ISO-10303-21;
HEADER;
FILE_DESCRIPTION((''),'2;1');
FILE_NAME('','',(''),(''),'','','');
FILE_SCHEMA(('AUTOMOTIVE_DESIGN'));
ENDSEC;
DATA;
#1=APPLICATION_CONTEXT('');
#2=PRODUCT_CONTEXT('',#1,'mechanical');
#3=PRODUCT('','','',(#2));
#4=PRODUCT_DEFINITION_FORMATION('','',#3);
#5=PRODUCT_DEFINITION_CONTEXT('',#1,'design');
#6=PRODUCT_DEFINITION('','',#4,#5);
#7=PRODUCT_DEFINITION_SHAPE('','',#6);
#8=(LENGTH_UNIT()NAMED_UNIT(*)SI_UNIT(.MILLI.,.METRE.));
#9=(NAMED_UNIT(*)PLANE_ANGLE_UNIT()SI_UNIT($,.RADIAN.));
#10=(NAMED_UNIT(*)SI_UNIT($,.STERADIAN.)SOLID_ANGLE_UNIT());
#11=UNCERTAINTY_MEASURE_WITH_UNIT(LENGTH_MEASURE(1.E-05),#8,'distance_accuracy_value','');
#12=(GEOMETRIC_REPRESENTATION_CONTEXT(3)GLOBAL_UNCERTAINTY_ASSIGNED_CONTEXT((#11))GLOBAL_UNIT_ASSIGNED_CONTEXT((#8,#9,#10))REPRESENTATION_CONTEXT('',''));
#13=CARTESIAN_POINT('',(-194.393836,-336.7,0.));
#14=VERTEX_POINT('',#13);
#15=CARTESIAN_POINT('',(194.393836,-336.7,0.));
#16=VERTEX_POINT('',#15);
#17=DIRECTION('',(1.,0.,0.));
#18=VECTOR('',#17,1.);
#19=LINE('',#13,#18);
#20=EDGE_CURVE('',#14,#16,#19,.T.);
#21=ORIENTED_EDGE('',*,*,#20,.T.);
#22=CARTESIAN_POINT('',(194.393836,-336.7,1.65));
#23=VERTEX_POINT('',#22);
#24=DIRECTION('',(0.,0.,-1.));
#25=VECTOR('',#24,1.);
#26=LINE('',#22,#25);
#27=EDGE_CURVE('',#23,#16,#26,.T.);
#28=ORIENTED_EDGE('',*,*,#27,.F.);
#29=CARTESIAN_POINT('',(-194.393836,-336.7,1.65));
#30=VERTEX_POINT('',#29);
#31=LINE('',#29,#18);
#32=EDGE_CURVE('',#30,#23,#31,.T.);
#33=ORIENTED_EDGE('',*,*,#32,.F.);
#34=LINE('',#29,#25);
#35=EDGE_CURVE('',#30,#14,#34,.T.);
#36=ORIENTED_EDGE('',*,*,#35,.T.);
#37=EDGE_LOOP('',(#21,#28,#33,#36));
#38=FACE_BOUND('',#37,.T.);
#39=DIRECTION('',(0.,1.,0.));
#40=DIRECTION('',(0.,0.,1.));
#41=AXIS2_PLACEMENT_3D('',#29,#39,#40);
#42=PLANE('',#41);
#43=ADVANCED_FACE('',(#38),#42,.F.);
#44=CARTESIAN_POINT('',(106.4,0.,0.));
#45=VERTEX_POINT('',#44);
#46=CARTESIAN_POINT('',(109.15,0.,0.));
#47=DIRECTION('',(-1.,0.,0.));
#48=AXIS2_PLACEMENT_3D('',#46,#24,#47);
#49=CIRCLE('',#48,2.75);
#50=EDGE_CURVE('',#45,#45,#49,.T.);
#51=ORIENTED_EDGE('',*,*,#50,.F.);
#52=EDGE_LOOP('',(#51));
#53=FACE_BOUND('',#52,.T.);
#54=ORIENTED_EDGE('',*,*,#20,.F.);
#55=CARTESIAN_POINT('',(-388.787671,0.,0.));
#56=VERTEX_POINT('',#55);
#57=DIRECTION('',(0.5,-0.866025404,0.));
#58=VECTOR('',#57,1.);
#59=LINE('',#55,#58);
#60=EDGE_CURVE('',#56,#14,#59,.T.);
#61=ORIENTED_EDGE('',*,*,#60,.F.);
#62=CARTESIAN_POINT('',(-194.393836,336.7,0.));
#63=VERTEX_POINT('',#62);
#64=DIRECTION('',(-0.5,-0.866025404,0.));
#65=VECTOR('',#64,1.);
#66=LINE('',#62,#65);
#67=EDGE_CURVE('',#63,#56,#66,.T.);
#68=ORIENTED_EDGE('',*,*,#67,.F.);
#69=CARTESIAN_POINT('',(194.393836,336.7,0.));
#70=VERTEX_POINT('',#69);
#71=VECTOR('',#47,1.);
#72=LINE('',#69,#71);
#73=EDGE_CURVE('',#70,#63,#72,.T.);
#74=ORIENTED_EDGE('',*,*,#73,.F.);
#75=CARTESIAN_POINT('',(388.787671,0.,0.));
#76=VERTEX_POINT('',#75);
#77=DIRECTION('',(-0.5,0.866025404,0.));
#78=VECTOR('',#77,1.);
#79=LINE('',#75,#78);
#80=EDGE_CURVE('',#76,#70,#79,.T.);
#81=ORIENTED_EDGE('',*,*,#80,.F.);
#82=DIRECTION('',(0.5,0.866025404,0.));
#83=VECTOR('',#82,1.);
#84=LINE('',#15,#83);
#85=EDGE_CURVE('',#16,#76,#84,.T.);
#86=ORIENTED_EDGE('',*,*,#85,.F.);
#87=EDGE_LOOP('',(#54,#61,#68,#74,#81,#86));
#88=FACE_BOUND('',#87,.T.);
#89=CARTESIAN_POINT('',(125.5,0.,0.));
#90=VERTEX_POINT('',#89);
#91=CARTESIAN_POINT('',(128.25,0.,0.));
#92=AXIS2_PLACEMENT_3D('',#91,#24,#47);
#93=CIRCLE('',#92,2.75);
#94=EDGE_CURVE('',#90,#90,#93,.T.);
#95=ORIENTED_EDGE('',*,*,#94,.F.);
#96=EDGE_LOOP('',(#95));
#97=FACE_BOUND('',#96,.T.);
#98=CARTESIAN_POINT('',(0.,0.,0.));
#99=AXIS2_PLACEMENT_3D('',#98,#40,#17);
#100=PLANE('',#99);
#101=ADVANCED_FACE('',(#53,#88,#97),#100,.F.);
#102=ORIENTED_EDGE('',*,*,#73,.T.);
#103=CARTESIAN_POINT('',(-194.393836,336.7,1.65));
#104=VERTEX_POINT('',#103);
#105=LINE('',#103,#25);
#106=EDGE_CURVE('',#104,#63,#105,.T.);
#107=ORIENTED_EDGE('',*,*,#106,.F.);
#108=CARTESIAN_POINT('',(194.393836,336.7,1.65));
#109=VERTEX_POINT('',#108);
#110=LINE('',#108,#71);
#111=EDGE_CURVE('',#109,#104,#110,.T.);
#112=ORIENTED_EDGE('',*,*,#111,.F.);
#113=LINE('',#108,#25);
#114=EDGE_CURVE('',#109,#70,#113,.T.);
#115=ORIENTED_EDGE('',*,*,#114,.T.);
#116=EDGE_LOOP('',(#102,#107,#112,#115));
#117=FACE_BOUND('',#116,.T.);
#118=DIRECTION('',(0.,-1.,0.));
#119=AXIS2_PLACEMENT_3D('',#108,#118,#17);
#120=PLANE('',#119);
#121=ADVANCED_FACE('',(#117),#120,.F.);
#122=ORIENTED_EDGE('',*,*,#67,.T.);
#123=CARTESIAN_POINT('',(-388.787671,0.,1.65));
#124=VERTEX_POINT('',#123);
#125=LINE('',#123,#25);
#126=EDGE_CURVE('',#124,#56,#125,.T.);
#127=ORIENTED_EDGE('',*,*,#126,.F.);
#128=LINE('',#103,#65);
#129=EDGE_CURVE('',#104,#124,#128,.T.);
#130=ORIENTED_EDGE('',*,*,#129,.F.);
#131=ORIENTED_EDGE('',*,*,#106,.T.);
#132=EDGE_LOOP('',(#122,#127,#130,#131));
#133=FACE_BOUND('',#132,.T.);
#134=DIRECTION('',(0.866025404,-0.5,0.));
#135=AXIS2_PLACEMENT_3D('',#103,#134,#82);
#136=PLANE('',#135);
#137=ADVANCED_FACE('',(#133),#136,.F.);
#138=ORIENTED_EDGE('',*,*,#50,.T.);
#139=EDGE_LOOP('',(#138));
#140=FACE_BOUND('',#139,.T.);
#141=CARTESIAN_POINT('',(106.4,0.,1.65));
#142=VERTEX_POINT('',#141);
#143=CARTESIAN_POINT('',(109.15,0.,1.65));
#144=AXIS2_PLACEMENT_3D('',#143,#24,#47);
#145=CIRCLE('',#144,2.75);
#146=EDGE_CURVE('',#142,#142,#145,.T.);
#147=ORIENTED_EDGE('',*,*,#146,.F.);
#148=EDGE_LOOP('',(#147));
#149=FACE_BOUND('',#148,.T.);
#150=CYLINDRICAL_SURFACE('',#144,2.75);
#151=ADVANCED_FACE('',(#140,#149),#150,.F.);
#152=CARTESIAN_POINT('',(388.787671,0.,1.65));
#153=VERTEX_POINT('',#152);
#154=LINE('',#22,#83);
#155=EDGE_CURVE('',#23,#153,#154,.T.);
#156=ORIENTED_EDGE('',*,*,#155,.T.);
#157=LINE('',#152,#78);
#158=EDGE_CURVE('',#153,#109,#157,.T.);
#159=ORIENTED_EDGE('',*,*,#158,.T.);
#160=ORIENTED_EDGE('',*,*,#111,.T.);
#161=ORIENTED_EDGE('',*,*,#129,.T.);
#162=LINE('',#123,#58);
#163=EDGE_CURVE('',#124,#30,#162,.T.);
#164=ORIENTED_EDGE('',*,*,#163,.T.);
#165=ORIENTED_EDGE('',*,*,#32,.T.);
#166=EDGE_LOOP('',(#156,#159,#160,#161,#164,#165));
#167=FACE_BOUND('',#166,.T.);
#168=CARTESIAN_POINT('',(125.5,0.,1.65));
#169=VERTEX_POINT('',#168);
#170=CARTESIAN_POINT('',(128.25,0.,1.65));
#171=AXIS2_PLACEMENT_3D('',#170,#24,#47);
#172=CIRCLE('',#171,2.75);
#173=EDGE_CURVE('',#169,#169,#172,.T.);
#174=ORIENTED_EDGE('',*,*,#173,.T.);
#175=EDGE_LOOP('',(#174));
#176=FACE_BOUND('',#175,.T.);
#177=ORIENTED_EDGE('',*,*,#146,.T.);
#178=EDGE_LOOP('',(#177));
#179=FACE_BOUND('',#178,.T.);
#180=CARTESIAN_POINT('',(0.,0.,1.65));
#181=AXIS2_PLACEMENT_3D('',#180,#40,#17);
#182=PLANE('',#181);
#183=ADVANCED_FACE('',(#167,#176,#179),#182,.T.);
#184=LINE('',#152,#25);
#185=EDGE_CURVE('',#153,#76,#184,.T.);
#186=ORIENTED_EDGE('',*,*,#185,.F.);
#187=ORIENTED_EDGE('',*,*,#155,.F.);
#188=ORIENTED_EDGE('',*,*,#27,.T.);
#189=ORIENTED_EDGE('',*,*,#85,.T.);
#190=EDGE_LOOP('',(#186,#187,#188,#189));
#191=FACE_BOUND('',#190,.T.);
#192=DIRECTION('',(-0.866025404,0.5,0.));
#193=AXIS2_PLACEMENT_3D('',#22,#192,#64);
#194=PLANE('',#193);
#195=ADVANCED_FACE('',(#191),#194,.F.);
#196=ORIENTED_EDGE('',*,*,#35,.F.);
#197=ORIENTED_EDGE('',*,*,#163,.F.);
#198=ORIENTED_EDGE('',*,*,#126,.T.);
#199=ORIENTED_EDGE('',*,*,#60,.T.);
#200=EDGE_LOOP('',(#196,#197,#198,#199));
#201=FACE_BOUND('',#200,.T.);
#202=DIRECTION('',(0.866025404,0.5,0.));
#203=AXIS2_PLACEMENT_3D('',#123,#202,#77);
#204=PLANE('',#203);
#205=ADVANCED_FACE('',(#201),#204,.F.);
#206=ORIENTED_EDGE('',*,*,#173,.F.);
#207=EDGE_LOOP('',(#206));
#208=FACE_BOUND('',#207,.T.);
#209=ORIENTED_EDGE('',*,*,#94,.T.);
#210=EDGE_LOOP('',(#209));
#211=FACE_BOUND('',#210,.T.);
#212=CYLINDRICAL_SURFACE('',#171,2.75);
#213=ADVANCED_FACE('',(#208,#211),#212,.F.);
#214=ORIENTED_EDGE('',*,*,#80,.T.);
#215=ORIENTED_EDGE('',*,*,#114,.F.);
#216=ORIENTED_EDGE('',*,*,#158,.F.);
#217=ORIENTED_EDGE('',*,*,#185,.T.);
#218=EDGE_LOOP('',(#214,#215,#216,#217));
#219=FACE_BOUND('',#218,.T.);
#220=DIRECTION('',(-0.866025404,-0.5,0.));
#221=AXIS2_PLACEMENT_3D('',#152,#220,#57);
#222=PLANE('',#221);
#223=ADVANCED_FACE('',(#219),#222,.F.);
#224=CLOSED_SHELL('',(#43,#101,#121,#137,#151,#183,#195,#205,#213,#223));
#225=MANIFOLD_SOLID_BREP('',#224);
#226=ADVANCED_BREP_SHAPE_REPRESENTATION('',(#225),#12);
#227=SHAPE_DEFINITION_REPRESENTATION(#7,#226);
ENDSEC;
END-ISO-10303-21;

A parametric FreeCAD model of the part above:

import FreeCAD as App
import Part
import Sketcher

V = App.Vector
Q = App.Units.Quantity

doc = App.newDocument("Part")
params = doc.addObject("Spreadsheet::Sheet", "Params")
for row, (alias, value) in enumerate([
    ("pad1_length", "1.65 mm"),
    ("sketch2_diameter", "5.5 mm"),
], start=1):
    params.set(f"A{row}", alias)
    params.set(f"B{row}", "=" + value)
    params.setAlias(f"B{row}", alias)

body = doc.addObject("PartDesign::Body", "Body")

sketch1 = doc.addObject("Sketcher::SketchObject", "Sketch")
body.addObject(sketch1)
sketch1.AttachmentSupport = (doc.XY_Plane, [""])
sketch1.MapMode = "FlatFace"
sketch1.addGeometry([
    Part.LineSegment(V(194, 337, 0), V(-194, 337, 0)),
    Part.LineSegment(V(-194, 337, 0), V(-389, 0, 0)),
    Part.LineSegment(V(-389, 0, 0), V(-194, -337, 0)),
    Part.LineSegment(V(-194, -337, 0), V(194, -337, 0)),
    Part.LineSegment(V(194, -337, 0), V(389, 0, 0)),
    Part.LineSegment(V(389, 0, 0), V(194, 337, 0)),
], False)
sketch1.addConstraint([
    Sketcher.Constraint("Coincident", 0, 2, 1, 1),
    Sketcher.Constraint("Coincident", 1, 2, 2, 1),
    Sketcher.Constraint("Coincident", 2, 2, 3, 1),
    Sketcher.Constraint("Coincident", 3, 2, 4, 1),
    Sketcher.Constraint("Coincident", 4, 2, 5, 1),
    Sketcher.Constraint("Coincident", 5, 2, 0, 1),
    Sketcher.Constraint("Horizontal", 0),
    Sketcher.Constraint("Horizontal", 3),
    Sketcher.Constraint("Symmetric", 0, 2, 3, 2, -1, 1),
    Sketcher.Constraint("Symmetric", 1, 2, 4, 2, -1, 1),
    Sketcher.Constraint("PointOnObject", 1, 2, -1),
    Sketcher.Constraint("Parallel", 2, 5),
    Sketcher.Constraint("Vertical", 0, 2, 2, 2),
    Sketcher.Constraint("Angle", 1, Q("-120 deg")),
    Sketcher.Constraint("DistanceY", -1, 1, 0, 2, Q("336.7 mm")),
    Sketcher.Constraint("DistanceX", 0, 2, 0, 1, Q("388.787671 mm")),
])
pad1 = doc.addObject("PartDesign::Pad", "Pad")
body.addObject(pad1)
pad1.Profile = sketch1
pad1.setExpression("Length", "Params.pad1_length")

sketch2 = doc.addObject("Sketcher::SketchObject", "Sketch001")
body.addObject(sketch2)
sketch2.AttachmentSupport = (doc.XY_Plane, [""])
sketch2.MapMode = "FlatFace"
sketch2.addGeometry([
    Part.Circle(V(128.2, 0, 0), V(0, 0, 1), 2.8),
    Part.Circle(V(109.2, 0, 0), V(0, 0, 1), 2.8),
], False)
sketch2.addConstraint([
    Sketcher.Constraint("Equal", 0, 1),
    Sketcher.Constraint("PointOnObject", 0, 3, -1),
    Sketcher.Constraint("PointOnObject", 1, 3, -1),
    Sketcher.Constraint("Diameter", 0, Q("5.5 mm")),
    Sketcher.Constraint("DistanceX", 1, 3, 0, 3, Q("19.1 mm")),
    Sketcher.Constraint("DistanceX", -1, 1, 0, 3, Q("128.25 mm")),
])
sketch2.setExpression("Constraints[3]", "Params.sketch2_diameter")
pocket1 = doc.addObject("PartDesign::Pocket", "Pocket")
body.addObject(pocket1)
pocket1.Profile = sketch2
pocket1.Type = "ThroughAll"
pocket1.Reversed = True

doc.recompute()
